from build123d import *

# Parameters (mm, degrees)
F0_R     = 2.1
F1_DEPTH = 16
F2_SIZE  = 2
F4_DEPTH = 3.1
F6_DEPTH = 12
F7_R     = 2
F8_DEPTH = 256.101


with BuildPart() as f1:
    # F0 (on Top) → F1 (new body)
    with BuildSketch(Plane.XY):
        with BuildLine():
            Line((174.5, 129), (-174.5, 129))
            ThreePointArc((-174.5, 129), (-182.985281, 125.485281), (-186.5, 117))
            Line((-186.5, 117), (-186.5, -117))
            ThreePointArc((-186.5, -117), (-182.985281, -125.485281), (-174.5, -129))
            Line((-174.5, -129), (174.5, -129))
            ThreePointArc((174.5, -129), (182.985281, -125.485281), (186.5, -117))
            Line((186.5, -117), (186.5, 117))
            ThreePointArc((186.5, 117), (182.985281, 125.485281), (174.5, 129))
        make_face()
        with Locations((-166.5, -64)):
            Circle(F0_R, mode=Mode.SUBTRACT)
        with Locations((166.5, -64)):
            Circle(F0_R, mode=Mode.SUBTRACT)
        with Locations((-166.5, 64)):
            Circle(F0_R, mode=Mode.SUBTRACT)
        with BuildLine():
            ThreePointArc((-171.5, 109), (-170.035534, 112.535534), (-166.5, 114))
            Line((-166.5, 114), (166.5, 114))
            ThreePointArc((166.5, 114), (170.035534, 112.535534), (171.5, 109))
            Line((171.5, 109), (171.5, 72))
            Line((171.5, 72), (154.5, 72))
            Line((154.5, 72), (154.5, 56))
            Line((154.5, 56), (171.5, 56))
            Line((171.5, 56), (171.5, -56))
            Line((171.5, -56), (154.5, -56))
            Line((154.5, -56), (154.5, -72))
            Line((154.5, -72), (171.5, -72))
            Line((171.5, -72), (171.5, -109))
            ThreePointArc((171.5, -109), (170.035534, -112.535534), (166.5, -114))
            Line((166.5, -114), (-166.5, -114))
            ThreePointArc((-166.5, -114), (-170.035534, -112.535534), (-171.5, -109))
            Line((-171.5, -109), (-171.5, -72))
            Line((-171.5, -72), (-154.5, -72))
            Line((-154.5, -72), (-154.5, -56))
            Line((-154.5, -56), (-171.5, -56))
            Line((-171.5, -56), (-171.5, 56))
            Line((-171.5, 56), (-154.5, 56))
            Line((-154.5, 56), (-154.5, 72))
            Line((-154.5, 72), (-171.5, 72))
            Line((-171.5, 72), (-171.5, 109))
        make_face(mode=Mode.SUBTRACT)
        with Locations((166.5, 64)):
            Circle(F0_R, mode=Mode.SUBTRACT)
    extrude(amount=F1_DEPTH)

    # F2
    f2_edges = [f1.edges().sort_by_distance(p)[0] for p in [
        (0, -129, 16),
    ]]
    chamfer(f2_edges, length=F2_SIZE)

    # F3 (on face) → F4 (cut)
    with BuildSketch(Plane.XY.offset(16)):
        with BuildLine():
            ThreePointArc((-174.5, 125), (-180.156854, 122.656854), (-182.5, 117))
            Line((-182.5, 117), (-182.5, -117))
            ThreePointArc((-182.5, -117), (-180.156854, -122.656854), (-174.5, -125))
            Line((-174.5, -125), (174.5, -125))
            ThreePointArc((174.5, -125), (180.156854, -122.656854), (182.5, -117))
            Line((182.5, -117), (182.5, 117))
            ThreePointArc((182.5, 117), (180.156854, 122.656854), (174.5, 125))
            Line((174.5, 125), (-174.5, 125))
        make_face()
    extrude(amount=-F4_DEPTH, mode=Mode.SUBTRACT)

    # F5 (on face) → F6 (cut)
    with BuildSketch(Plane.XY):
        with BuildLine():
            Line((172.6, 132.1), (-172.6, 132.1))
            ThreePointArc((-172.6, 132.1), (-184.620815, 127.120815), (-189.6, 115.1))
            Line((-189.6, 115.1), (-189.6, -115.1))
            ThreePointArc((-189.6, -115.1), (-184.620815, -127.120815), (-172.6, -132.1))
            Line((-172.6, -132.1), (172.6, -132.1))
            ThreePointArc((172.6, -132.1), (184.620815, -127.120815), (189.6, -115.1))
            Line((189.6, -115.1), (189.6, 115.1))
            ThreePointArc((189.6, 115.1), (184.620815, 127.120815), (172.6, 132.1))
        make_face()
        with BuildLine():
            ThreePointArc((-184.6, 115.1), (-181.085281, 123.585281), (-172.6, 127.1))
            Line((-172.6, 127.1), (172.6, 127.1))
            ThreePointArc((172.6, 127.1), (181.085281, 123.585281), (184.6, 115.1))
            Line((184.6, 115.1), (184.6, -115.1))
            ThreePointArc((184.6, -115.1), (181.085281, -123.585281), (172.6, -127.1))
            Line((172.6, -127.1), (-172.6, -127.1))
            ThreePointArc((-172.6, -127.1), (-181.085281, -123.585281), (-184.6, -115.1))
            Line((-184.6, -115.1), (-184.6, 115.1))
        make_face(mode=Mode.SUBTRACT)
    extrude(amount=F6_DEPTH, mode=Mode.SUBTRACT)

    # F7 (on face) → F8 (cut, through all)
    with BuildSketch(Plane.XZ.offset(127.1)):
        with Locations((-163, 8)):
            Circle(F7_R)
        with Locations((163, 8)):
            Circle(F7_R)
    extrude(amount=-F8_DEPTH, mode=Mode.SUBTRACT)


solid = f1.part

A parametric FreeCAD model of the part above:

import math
import FreeCAD as App
import Part
import Sketcher


def edges_at(feature, points):
    """Names of the edges that pass closest to the given points."""
    edges = feature.Shape.Edges
    near = lambda p: min(range(len(edges)), key=lambda i: edges[i].distToShape(Part.Vertex(*p))[0])
    return sorted({f"Edge{near(p) + 1}" for p in points})

doc = App.newDocument("Part")
params = doc.addObject("Spreadsheet::Sheet", "Params")
for row, (alias, value) in enumerate([
    ("sketch1_radius", "12.000001 mm"),
    ("sketch1_radius2", "5 mm"),
    ("sketch1_diameter", "4.2 mm"),
    ("sketch1_width", "349 mm"),
    ("sketch1_width2", "333 mm"),
    ("pad1_length", "16 mm"),
    ("chamfer_size", "2 mm"),
    ("sketch2_radius", "8.000001 mm"),
    ("sketch2_width", "349 mm"),
    ("sketch2_height", "234 mm"),
    ("pocket1_length", "3.1 mm"),
    ("sketch3_radius", "17.000001 mm"),
    ("sketch3_radius2", "12.000001 mm"),
    ("sketch3_width", "345.2 mm"),
    ("sketch3_height", "230.2 mm"),
    ("pocket2_length", "12 mm"),
    ("sketch4_diameter", "4 mm"),
], start=1):
    params.set(f"A{row}", alias)
    params.set(f"B{row}", "=" + value)
    params.setAlias(f"B{row}", alias)

body = doc.addObject("PartDesign::Body", "Body")

sketch1 = body.newObject("Sketcher::SketchObject", "Sketch")
sketch1.AttachmentSupport = (doc.getObject("XY_Plane"), [""])
sketch1.MapMode = "FlatFace"
sketch1.addGeometry([
    Part.LineSegment(App.Vector(174.5, 129, 0), App.Vector(-174.5, 129, 0)),
    Part.ArcOfCircle(Part.Circle(App.Vector(-174.5, 117, 0), App.Vector(0, 0, 1), 12), math.radians(90), math.radians(180)),
    Part.LineSegment(App.Vector(-186.5, 117, 0), App.Vector(-186.5, -117, 0)),
    Part.ArcOfCircle(Part.Circle(App.Vector(-174.5, -117, 0), App.Vector(0, 0, 1), 12), math.radians(-180), math.radians(-90)),
    Part.LineSegment(App.Vector(-174.5, -129, 0), App.Vector(174.5, -129, 0)),
    Part.ArcOfCircle(Part.Circle(App.Vector(174.5, -117, 0), App.Vector(0, 0, 1), 12), math.radians(-90), math.radians(0)),
    Part.LineSegment(App.Vector(186.5, -117, 0), App.Vector(186.5, 117, 0)),
    Part.ArcOfCircle(Part.Circle(App.Vector(174.5, 117, 0), App.Vector(0, 0, 1), 12), math.radians(0), math.radians(90)),
    Part.Circle(App.Vector(-166.5, -64, 0), App.Vector(0, 0, 1), 2.1),
    Part.Circle(App.Vector(166.5, -64, 0), App.Vector(0, 0, 1), 2.1),
    Part.Circle(App.Vector(-166.5, 64, 0), App.Vector(0, 0, 1), 2.1),
    Part.LineSegment(App.Vector(-171.5, 72, 0), App.Vector(-171.5, 109, 0)),
    Part.ArcOfCircle(Part.Circle(App.Vector(-166.5, 109, 0), App.Vector(0, 0, 1), 5), math.radians(90), math.radians(180)),
    Part.LineSegment(App.Vector(-166.5, 114, 0), App.Vector(166.5, 114, 0)),
    Part.ArcOfCircle(Part.Circle(App.Vector(166.5, 109, 0), App.Vector(0, 0, 1), 5), math.radians(0), math.radians(90)),
    Part.LineSegment(App.Vector(171.5, 109, 0), App.Vector(171.5, 72, 0)),
    Part.LineSegment(App.Vector(171.5, 72, 0), App.Vector(154.5, 72, 0)),
    Part.LineSegment(App.Vector(154.5, 72, 0), App.Vector(154.5, 56, 0)),
    Part.LineSegment(App.Vector(154.5, 56, 0), App.Vector(171.5, 56, 0)),
    Part.LineSegment(App.Vector(171.5, 56, 0), App.Vector(171.5, -56, 0)),
    Part.LineSegment(App.Vector(171.5, -56, 0), App.Vector(154.5, -56, 0)),
    Part.LineSegment(App.Vector(154.5, -56, 0), App.Vector(154.5, -72, 0)),
    Part.LineSegment(App.Vector(154.5, -72, 0), App.Vector(171.5, -72, 0)),
    Part.LineSegment(App.Vector(171.5, -72, 0), App.Vector(171.5, -109, 0)),
    Part.ArcOfCircle(Part.Circle(App.Vector(166.5, -109, 0), App.Vector(0, 0, 1), 5), math.radians(-90), math.radians(0)),
    Part.LineSegment(App.Vector(166.5, -114, 0), App.Vector(-166.5, -114, 0)),
    Part.ArcOfCircle(Part.Circle(App.Vector(-166.5, -109, 0), App.Vector(0, 0, 1), 5), math.radians(180), math.radians(270)),
    Part.LineSegment(App.Vector(-171.5, -109, 0), App.Vector(-171.5, -72, 0)),
    Part.LineSegment(App.Vector(-171.5, -72, 0), App.Vector(-154.5, -72, 0)),
    Part.LineSegment(App.Vector(-154.5, -72, 0), App.Vector(-154.5, -56, 0)),
    Part.LineSegment(App.Vector(-154.5, -56, 0), App.Vector(-171.5, -56, 0)),
    Part.LineSegment(App.Vector(-171.5, -56, 0), App.Vector(-171.5, 56, 0)),
    Part.LineSegment(App.Vector(-171.5, 56, 0), App.Vector(-154.5, 56, 0)),
    Part.LineSegment(App.Vector(-154.5, 56, 0), App.Vector(-154.5, 72, 0)),
    Part.LineSegment(App.Vector(-154.5, 72, 0), App.Vector(-171.5, 72, 0)),
    Part.Circle(App.Vector(166.5, 64, 0), App.Vector(0, 0, 1), 2.1),
], False)
sketch1.addConstraint([
    Sketcher.Constraint("Tangent", 0, 2, 1, 1),
    Sketcher.Constraint("Tangent", 1, 2, 2, 1),
    Sketcher.Constraint("Tangent", 2, 2, 3, 1),
    Sketcher.Constraint("Tangent", 3, 2, 4, 1),
    Sketcher.Constraint("Tangent", 4, 2, 5, 1),
    Sketcher.Constraint("Tangent", 5, 2, 6, 1),
    Sketcher.Constraint("Tangent", 6, 2, 7, 1),
    Sketcher.Constraint("Tangent", 7, 2, 0, 1),
    Sketcher.Constraint("Tangent", 11, 2, 12, 2),
    Sketcher.Constraint("Tangent", 12, 1, 13, 1),
    Sketcher.Constraint("Tangent", 13, 2, 14, 2),
    Sketcher.Constraint("Tangent", 14, 1, 15, 1),
    Sketcher.Constraint("Coincident", 15, 2, 16, 1),
    Sketcher.Constraint("Coincident", 16, 2, 17, 1),
    Sketcher.Constraint("Coincident", 17, 2, 18, 1),
    Sketcher.Constraint("Coincident", 18, 2, 19, 1),
    Sketcher.Constraint("Coincident", 19, 2, 20, 1),
    Sketcher.Constraint("Coincident", 20, 2, 21, 1),
    Sketcher.Constraint("Coincident", 21, 2, 22, 1),
    Sketcher.Constraint("Coincident", 22, 2, 23, 1),
    Sketcher.Constraint("Tangent", 23, 2, 24, 2),
    Sketcher.Constraint("Tangent", 24, 1, 25, 1),
    Sketcher.Constraint("Tangent", 25, 2, 26, 2),
    Sketcher.Constraint("Tangent", 26, 1, 27, 1),
    Sketcher.Constraint("Coincident", 27, 2, 28, 1),
    Sketcher.Constraint("Coincident", 28, 2, 29, 1),
    Sketcher.Constraint("Coincident", 29, 2, 30, 1),
    Sketcher.Constraint("Coincident", 30, 2, 31, 1),
    Sketcher.Constraint("Coincident", 31, 2, 32, 1),
    Sketcher.Constraint("Coincident", 32, 2, 33, 1),
    Sketcher.Constraint("Coincident", 33, 2, 34, 1),
    Sketcher.Constraint("Coincident", 34, 2, 11, 1),
    Sketcher.Constraint("Horizontal", 0),
    Sketcher.Constraint("Vertical", 2),
    Sketcher.Constraint("Horizontal", 4),
    Sketcher.Constraint("Vertical", 6),
    Sketcher.Constraint("Vertical", 11),
    Sketcher.Constraint("Horizontal", 13),
    Sketcher.Constraint("Vertical", 15),
    Sketcher.Constraint("Horizontal", 16),
    Sketcher.Constraint("Vertical", 17),
    Sketcher.Constraint("Horizontal", 18),
    Sketcher.Constraint("Vertical", 19),
    Sketcher.Constraint("Horizontal", 20),
    Sketcher.Constraint("Vertical", 21),
    Sketcher.Constraint("Horizontal", 22),
    Sketcher.Constraint("Vertical", 23),
    Sketcher.Constraint("Horizontal", 25),
    Sketcher.Constraint("Vertical", 27),
    Sketcher.Constraint("Horizontal", 28),
    Sketcher.Constraint("Vertical", 29),
    Sketcher.Constraint("Horizontal", 30),
    Sketcher.Constraint("Vertical", 31),
    Sketcher.Constraint("Horizontal", 32),
    Sketcher.Constraint("Vertical", 33),
    Sketcher.Constraint("Horizontal", 34),
    Sketcher.Constraint("Equal", 1, 3),
    Sketcher.Constraint("Equal", 3, 5),
    Sketcher.Constraint("Equal", 5, 7),
    Sketcher.Constraint("Equal", 8, 9),
    Sketcher.Constraint("Equal", 9, 10),
    Sketcher.Constraint("Equal", 12, 14),
    Sketcher.Constraint("Equal", 14, 24),
    Sketcher.Constraint("Equal", 24, 26),
    Sketcher.Constraint("Equal", 10, 35),
    Sketcher.Constraint("Symmetric", 1, 3, 5, 3, -1, 1),
    Sketcher.Constraint("Symmetric", 9, 3, 10, 3, -1, 1),
    Sketcher.Constraint("Symmetric", 12, 3, 24, 3, -1, 1),
    Sketcher.Constraint("Symmetric", 8, 3, 35, 3, -1, 1),
    Sketcher.Constraint("Symmetric", 15, 2, 27, 2, -1, 1),
    Sketcher.Constraint("Symmetric", 17, 2, 29, 2, -1, 1),
    Sketcher.Constraint("Symmetric", 19, 2, 31, 2, -1, 1),
    Sketcher.Constraint("Symmetric", 21, 2, 33, 2, -1, 1),
    Sketcher.Constraint("Symmetric", 8, 3, 9, 3, -2),
    Sketcher.Constraint("Symmetric", 22, 2, 27, 2, -2),
    Sketcher.Constraint("Symmetric", 20, 2, 29, 2, -2),
    Sketcher.Constraint("Vertical", 10, 3, 12, 3),
    Sketcher.Constraint("Vertical", 15, 2, 18, 2),
    Sketcher.Constraint("Radius", 1, 12.000001),
    Sketcher.Constraint("Radius", 12, 5.0),
    Sketcher.Constraint("Diameter", 8, 4.2),
    Sketcher.Constraint("DistanceX", 0, 2, 0, 1, 349.0),
    Sketcher.Constraint("DistanceX", 13, 1, 13, 2, 333.0),
    Sketcher.Constraint("DistanceX", 16, 2, 16, 1, 17.0),
    Sketcher.Constraint("DistanceY", 2, 2, 2, 1, 234.0),
    Sketcher.Constraint("DistanceY", 11, 1, 11, 2, 37.0),
    Sketcher.Constraint("DistanceY", 17, 2, 17, 1, 16.0),
    Sketcher.Constraint("DistanceY", 19, 2, 19, 1, 112.0),
    Sketcher.Constraint("DistanceY", 8, 3, -1, 1, 64.0),
])
sketch1.setExpression("Constraints[78]", "Params.sketch1_radius")
sketch1.setExpression("Constraints[79]", "Params.sketch1_radius2")
sketch1.setExpression("Constraints[80]", "Params.sketch1_diameter")
sketch1.setExpression("Constraints[81]", "Params.sketch1_width")
sketch1.setExpression("Constraints[82]", "Params.sketch1_width2")
pad1 = body.newObject("PartDesign::Pad", "Pad")
pad1.Profile = sketch1
pad1.setExpression("Length", "Params.pad1_length")
doc.recompute()

chamfer = body.newObject("PartDesign::Chamfer", "Chamfer")
chamfer.Base = (pad1, edges_at(pad1, [(0, -129, 16)]))
chamfer.setExpression("Size", "Params.chamfer_size")

sketch2 = body.newObject("Sketcher::SketchObject", "Sketch001")
sketch2.AttachmentSupport = (doc.getObject("XY_Plane"), [""])
sketch2.MapMode = "FlatFace"
sketch2.AttachmentOffset = App.Placement(App.Vector(0, 0, 16), App.Rotation())
sketch2.addGeometry([
    Part.ArcOfCircle(Part.Circle(App.Vector(-174, 117, 0), App.Vector(0, 0, 1), 8), math.radians(90), math.radians(180)),
    Part.LineSegment(App.Vector(-182, 117, 0), App.Vector(-182, -117, 0)),
    Part.ArcOfCircle(Part.Circle(App.Vector(-174, -117, 0), App.Vector(0, 0, 1), 8), math.radians(-180), math.radians(-90)),
    Part.LineSegment(App.Vector(-174, -125, 0), App.Vector(174, -125, 0)),
    Part.ArcOfCircle(Part.Circle(App.Vector(174, -117, 0), App.Vector(0, 0, 1), 8), math.radians(-90), math.radians(0)),
    Part.LineSegment(App.Vector(182, -117, 0), App.Vector(182, 117, 0)),
    Part.ArcOfCircle(Part.Circle(App.Vector(174, 117, 0), App.Vector(0, 0, 1), 8), math.radians(0), math.radians(90)),
    Part.LineSegment(App.Vector(174, 125, 0), App.Vector(-174, 125, 0)),
], False)
sketch2.addConstraint([
    Sketcher.Constraint("Tangent", 0, 2, 1, 1),
    Sketcher.Constraint("Tangent", 1, 2, 2, 1),
    Sketcher.Constraint("Tangent", 2, 2, 3, 1),
    Sketcher.Constraint("Tangent", 3, 2, 4, 1),
    Sketcher.Constraint("Tangent", 4, 2, 5, 1),
    Sketcher.Constraint("Tangent", 5, 2, 6, 1),
    Sketcher.Constraint("Tangent", 6, 2, 7, 1),
    Sketcher.Constraint("Tangent", 7, 2, 0, 1),
    Sketcher.Constraint("Vertical", 1),
    Sketcher.Constraint("Horizontal", 3),
    Sketcher.Constraint("Vertical", 5),
    Sketcher.Constraint("Horizontal", 7),
    Sketcher.Constraint("Equal", 0, 2),
    Sketcher.Constraint("Equal", 2, 4),
    Sketcher.Constraint("Equal", 4, 6),
    Sketcher.Constraint("Symmetric", 0, 3, 4, 3, -1, 1),
    Sketcher.Constraint("Radius", 0, 8.000001),
    Sketcher.Constraint("DistanceX", 3, 1, 3, 2, 349.0),
    Sketcher.Constraint("DistanceY", 1, 2, 1, 1, 234.0),
])
sketch2.setExpression("Constraints[16]", "Params.sketch2_radius")
sketch2.setExpression("Constraints[17]", "Params.sketch2_width")
sketch2.setExpression("Constraints[18]", "Params.sketch2_height")
pocket1 = body.newObject("PartDesign::Pocket", "Pocket")
pocket1.Profile = sketch2
pocket1.setExpression("Length", "Params.pocket1_length")

sketch3 = body.newObject("Sketcher::SketchObject", "Sketch002")
sketch3.AttachmentSupport = (doc.getObject("XY_Plane"), [""])
sketch3.MapMode = "FlatFace"
sketch3.addGeometry([
    Part.LineSegment(App.Vector(173, 132, 0), App.Vector(-173, 132, 0)),
    Part.ArcOfCircle(Part.Circle(App.Vector(-173, 115, 0), App.Vector(0, 0, 1), 17), math.radians(90), math.radians(180)),
    Part.LineSegment(App.Vector(-190, 115, 0), App.Vector(-190, -115, 0)),
    Part.ArcOfCircle(Part.Circle(App.Vector(-173, -115, 0), App.Vector(0, 0, 1), 17), math.radians(-180), math.radians(-90)),
    Part.LineSegment(App.Vector(-173, -132, 0), App.Vector(173, -132, 0)),
    Part.ArcOfCircle(Part.Circle(App.Vector(173, -115, 0), App.Vector(0, 0, 1), 17), math.radians(-90), math.radians(0)),
    Part.LineSegment(App.Vector(190, -115, 0), App.Vector(190, 115, 0)),
    Part.ArcOfCircle(Part.Circle(App.Vector(173, 115, 0), App.Vector(0, 0, 1), 17), math.radians(0), math.radians(90)),
    Part.LineSegment(App.Vector(-185, -115, 0), App.Vector(-185, 115, 0)),
    Part.ArcOfCircle(Part.Circle(App.Vector(-173, 115, 0), App.Vector(0, 0, 1), 12), math.radians(90), math.radians(180)),
    Part.LineSegment(App.Vector(-173, 127, 0), App.Vector(173, 127, 0)),
    Part.ArcOfCircle(Part.Circle(App.Vector(173, 115, 0), App.Vector(0, 0, 1), 12), math.radians(0), math.radians(90)),
    Part.LineSegment(App.Vector(185, 115, 0), App.Vector(185, -115, 0)),
    Part.ArcOfCircle(Part.Circle(App.Vector(173, -115, 0), App.Vector(0, 0, 1), 12), math.radians(-90), math.radians(0)),
    Part.LineSegment(App.Vector(173, -127, 0), App.Vector(-173, -127, 0)),
    Part.ArcOfCircle(Part.Circle(App.Vector(-173, -115, 0), App.Vector(0, 0, 1), 12), math.radians(-180), math.radians(-90)),
], False)
sketch3.addConstraint([
    Sketcher.Constraint("Tangent", 0, 2, 1, 1),
    Sketcher.Constraint("Tangent", 1, 2, 2, 1),
    Sketcher.Constraint("Tangent", 2, 2, 3, 1),
    Sketcher.Constraint("Tangent", 3, 2, 4, 1),
    Sketcher.Constraint("Tangent", 4, 2, 5, 1),
    Sketcher.Constraint("Tangent", 5, 2, 6, 1),
    Sketcher.Constraint("Tangent", 6, 2, 7, 1),
    Sketcher.Constraint("Tangent", 7, 2, 0, 1),
    Sketcher.Constraint("Tangent", 8, 2, 9, 2),
    Sketcher.Constraint("Tangent", 9, 1, 10, 1),
    Sketcher.Constraint("Tangent", 10, 2, 11, 2),
    Sketcher.Constraint("Tangent", 11, 1, 12, 1),
    Sketcher.Constraint("Tangent", 12, 2, 13, 2),
    Sketcher.Constraint("Tangent", 13, 1, 14, 1),
    Sketcher.Constraint("Tangent", 14, 2, 15, 2),
    Sketcher.Constraint("Tangent", 15, 1, 8, 1),
    Sketcher.Constraint("Horizontal", 0),
    Sketcher.Constraint("Vertical", 2),
    Sketcher.Constraint("Horizontal", 4),
    Sketcher.Constraint("Vertical", 6),
    Sketcher.Constraint("Vertical", 8),
    Sketcher.Constraint("Horizontal", 10),
    Sketcher.Constraint("Vertical", 12),
    Sketcher.Constraint("Horizontal", 14),
    Sketcher.Constraint("Coincident", 9, 3, 1, 3),
    Sketcher.Constraint("Coincident", 11, 3, 7, 3),
    Sketcher.Constraint("Coincident", 13, 3, 5, 3),
    Sketcher.Constraint("Equal", 1, 3),
    Sketcher.Constraint("Equal", 3, 5),
    Sketcher.Constraint("Equal", 5, 7),
    Sketcher.Constraint("Equal", 13, 15),
    Sketcher.Constraint("Symmetric", 1, 3, 5, 3, -1, 1),
    Sketcher.Constraint("Radius", 1, 17.000001),
    Sketcher.Constraint("Radius", 9, 12.000001),
    Sketcher.Constraint("DistanceX", 0, 2, 0, 1, 345.2),
    Sketcher.Constraint("DistanceY", 2, 2, 2, 1, 230.2),
])
sketch3.setExpression("Constraints[32]", "Params.sketch3_radius")
sketch3.setExpression("Constraints[33]", "Params.sketch3_radius2")
sketch3.setExpression("Constraints[34]", "Params.sketch3_width")
sketch3.setExpression("Constraints[35]", "Params.sketch3_height")
pocket2 = body.newObject("PartDesign::Pocket", "Pocket001")
pocket2.Profile = sketch3
pocket2.setExpression("Length", "Params.pocket2_length")
pocket2.Reversed = True

sketch4 = body.newObject("Sketcher::SketchObject", "Sketch003")
sketch4.AttachmentSupport = (doc.getObject("XZ_Plane"), [""])
sketch4.MapMode = "FlatFace"
sketch4.AttachmentOffset = App.Placement(App.Vector(0, 0, 127.1), App.Rotation())
sketch4.addGeometry([
    Part.Circle(App.Vector(-163, 8, 0), App.Vector(0, 0, 1), 2),
    Part.Circle(App.Vector(163, 8, 0), App.Vector(0, 0, 1), 2),
], False)
sketch4.addConstraint([
    Sketcher.Constraint("Equal", 0, 1),
    Sketcher.Constraint("Symmetric", 0, 3, 1, 3, -2),
    Sketcher.Constraint("Diameter", 0, 4.0),
    Sketcher.Constraint("DistanceX", 0, 3, -1, 1, 163.0),
    Sketcher.Constraint("DistanceY", -1, 1, 0, 3, 8.0),
])
sketch4.setExpression("Constraints[2]", "Params.sketch4_diameter")
pocket3 = body.newObject("PartDesign::Pocket", "Pocket002")
pocket3.Profile = sketch4
pocket3.Type = "ThroughAll"

doc.recompute()
